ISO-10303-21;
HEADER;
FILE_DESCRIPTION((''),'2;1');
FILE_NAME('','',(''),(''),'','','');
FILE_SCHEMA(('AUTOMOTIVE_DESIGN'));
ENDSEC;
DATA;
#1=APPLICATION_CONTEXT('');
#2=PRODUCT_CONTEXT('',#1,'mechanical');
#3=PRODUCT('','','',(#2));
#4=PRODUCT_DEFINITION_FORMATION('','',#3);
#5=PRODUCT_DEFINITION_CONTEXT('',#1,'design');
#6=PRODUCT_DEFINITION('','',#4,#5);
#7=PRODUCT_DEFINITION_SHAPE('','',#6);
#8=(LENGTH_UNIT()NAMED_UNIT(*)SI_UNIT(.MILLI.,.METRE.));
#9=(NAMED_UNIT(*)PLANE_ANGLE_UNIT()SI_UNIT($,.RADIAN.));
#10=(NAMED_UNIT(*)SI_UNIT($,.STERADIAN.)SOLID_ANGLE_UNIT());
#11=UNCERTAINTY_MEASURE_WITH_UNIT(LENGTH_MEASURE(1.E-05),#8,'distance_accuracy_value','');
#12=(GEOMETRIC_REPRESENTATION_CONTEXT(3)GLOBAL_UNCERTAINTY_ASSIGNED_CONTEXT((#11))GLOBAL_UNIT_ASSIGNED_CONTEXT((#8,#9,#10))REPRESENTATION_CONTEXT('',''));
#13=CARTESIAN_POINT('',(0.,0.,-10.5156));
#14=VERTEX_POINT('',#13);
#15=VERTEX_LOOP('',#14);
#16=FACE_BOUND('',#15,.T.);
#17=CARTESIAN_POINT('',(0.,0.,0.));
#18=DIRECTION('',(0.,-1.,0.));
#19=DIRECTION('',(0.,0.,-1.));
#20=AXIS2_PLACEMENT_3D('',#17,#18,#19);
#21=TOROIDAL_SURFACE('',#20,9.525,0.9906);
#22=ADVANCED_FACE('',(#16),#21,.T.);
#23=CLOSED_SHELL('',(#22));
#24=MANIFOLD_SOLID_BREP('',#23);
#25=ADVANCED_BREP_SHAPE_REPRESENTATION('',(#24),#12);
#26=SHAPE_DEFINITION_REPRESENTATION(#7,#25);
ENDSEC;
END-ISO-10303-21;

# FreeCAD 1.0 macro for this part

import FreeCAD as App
import Part
import Sketcher
Q = App.Units.Quantity

doc = App.newDocument("Part")
params = doc.addObject("Spreadsheet::Sheet", "Params")
for row, (alias, value) in enumerate([
    ("sketch1_diameter", "0.078 in"),
    ("revolution_angle", "360 deg"),
], start=1):
    params.set(f"A{row}", alias)
    params.set(f"B{row}", "=" + value)
    params.setAlias(f"B{row}", alias)

body = doc.addObject("PartDesign::Body", "Body")

sketch1 = doc.addObject("Sketcher::SketchObject", "Sketch")
body.addObject(sketch1)
sketch1.AttachmentSupport = (doc.XY_Plane, [""])
sketch1.MapMode = "FlatFace"
sketch1.addGeometry(Part.Circle(App.Vector(9.5, 0, 0), App.Vector(0, 0, 1), 1), False)
sketch1.addConstraint([
    Sketcher.Constraint("PointOnObject", 0, 3, -1),
    Sketcher.Constraint("Diameter", 0, Q("0.078 in")),
    Sketcher.Constraint("DistanceX", -1, 1, 0, 3, Q("0.375 in")),
])
sketch1.setExpression("Constraints[1]", "Params.sketch1_diameter")
revolution = doc.addObject("PartDesign::Revolution", "Revolution")
body.addObject(revolution)
revolution.Profile = sketch1
revolution.ReferenceAxis = (sketch1, ["V_Axis"])
revolution.setExpression("Angle", "Params.revolution_angle")

doc.recompute()
